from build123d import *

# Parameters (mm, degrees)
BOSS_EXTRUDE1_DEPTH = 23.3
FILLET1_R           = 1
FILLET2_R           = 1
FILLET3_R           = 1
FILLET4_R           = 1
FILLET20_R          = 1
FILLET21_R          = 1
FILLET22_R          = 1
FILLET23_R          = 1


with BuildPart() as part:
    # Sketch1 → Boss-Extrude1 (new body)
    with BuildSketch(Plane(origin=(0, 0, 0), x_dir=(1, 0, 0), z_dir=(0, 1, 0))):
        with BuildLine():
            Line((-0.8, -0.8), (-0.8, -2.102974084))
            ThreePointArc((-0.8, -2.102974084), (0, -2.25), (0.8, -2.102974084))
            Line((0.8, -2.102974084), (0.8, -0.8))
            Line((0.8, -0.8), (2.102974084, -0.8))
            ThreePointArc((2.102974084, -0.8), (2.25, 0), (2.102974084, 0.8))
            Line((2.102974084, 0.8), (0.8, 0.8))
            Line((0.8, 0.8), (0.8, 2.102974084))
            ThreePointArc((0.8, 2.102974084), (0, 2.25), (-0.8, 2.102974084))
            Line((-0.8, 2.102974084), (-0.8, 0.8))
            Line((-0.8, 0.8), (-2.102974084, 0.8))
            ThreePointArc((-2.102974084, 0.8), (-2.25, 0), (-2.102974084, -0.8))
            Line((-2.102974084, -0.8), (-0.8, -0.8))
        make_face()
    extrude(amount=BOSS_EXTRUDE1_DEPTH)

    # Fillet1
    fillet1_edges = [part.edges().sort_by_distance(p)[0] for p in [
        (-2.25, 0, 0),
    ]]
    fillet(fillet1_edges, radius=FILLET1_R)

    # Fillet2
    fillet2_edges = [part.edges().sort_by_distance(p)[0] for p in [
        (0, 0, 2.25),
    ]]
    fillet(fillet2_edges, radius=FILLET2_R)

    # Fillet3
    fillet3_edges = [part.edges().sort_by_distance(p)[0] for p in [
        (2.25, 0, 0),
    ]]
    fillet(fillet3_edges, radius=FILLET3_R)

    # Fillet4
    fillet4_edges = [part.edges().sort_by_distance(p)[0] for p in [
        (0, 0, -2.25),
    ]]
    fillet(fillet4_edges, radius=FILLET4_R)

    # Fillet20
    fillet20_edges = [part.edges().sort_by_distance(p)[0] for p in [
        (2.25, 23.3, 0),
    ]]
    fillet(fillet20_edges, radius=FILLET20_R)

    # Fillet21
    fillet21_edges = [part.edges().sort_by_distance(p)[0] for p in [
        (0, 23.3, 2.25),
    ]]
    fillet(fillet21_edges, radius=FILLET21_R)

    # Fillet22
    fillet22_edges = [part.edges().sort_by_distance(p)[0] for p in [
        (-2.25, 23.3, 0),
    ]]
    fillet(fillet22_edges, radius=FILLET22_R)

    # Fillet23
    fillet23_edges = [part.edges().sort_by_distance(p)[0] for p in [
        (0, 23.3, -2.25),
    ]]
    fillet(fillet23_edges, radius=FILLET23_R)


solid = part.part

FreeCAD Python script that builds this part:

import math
import FreeCAD as App
import Part
import Sketcher
from FreeCAD import Vector


def edges_at(feature, points):
    """Names of the edges that pass closest to the given points."""
    edges = feature.Shape.Edges
    near = lambda p: min(range(len(edges)), key=lambda i: edges[i].distToShape(Part.Vertex(*p))[0])
    return sorted({f"Edge{near(p) + 1}" for p in points})

doc = App.newDocument("Part")
params = doc.addObject("Spreadsheet::Sheet", "Params")
for row, (alias, value) in enumerate([
    ("sketch1_radius", "2.25 mm"),
    ("pad1_length", "23.3 mm"),
    ("fillet_radius", "1 mm"),
    ("fillet2_radius", "1 mm"),
    ("fillet3_radius", "1 mm"),
    ("fillet4_radius", "1 mm"),
    ("fillet5_radius", "1 mm"),
    ("fillet6_radius", "1 mm"),
    ("fillet7_radius", "1 mm"),
    ("fillet8_radius", "1 mm"),
], start=1):
    params.set(f"A{row}", alias)
    params.set(f"B{row}", "=" + value)
    params.setAlias(f"B{row}", alias)

body = doc.addObject("PartDesign::Body", "Body")

# Sketch on XZ plane
sketch1 = doc.addObject("Sketcher::SketchObject", "Sketch")
body.addObject(sketch1)
sketch1.AttachmentSupport = (doc.XZ_Plane, [""])
sketch1.MapMode = "FlatFace"
sketch1.addGeometry([
    Part.LineSegment(Vector(-0.8, 0.8, 0), Vector(-0.8, 2.102974, 0)),  # 0
    Part.ArcOfCircle(Part.Circle(Vector(0, 0, 0), Vector(0, 0, 1), 2.25), math.radians(69.172503), math.radians(110.827497)),  # 1
    Part.LineSegment(Vector(0.8, 2.102974, 0), Vector(0.8, 0.8, 0)),  # 2
    Part.LineSegment(Vector(0.8, 0.8, 0), Vector(2.102974, 0.8, 0)),  # 3
    Part.ArcOfCircle(Part.Circle(Vector(0, 0, 0), Vector(0, 0, 1), 2.25), math.radians(-20.827497), math.radians(20.827497)),  # 4
    Part.LineSegment(Vector(2.102974, -0.8, 0), Vector(0.8, -0.8, 0)),  # 5
    Part.LineSegment(Vector(0.8, -0.8, 0), Vector(0.8, -2.102974, 0)),  # 6
    Part.ArcOfCircle(Part.Circle(Vector(0, 0, 0), Vector(0, 0, 1), 2.25), math.radians(-110.827497), math.radians(-69.172503)),  # 7
    Part.LineSegment(Vector(-0.8, -2.102974, 0), Vector(-0.8, -0.8, 0)),  # 8
    Part.LineSegment(Vector(-0.8, -0.8, 0), Vector(-2.102974, -0.8, 0)),  # 9
    Part.ArcOfCircle(Part.Circle(Vector(0, 0, 0), Vector(0, 0, 1), 2.25), math.radians(159.172503), math.radians(200.827497)),  # 10
    Part.LineSegment(Vector(-2.102974, 0.8, 0), Vector(-0.8, 0.8, 0)),  # 11
], False)
sketch1.addConstraint([
    Sketcher.Constraint("Coincident", 0, 2, 1, 2),
    Sketcher.Constraint("Coincident", 1, 1, 2, 1),
    Sketcher.Constraint("Coincident", 2, 2, 3, 1),
    Sketcher.Constraint("Coincident", 3, 2, 4, 2),
    Sketcher.Constraint("Coincident", 4, 1, 5, 1),
    Sketcher.Constraint("Coincident", 5, 2, 6, 1),
    Sketcher.Constraint("Coincident", 6, 2, 7, 2),
    Sketcher.Constraint("Coincident", 7, 1, 8, 1),
    Sketcher.Constraint("Coincident", 8, 2, 9, 1),
    Sketcher.Constraint("Coincident", 9, 2, 10, 2),
    Sketcher.Constraint("Coincident", 10, 1, 11, 1),
    Sketcher.Constraint("Coincident", 11, 2, 0, 1),
    Sketcher.Constraint("Vertical", 0),
    Sketcher.Constraint("Vertical", 2),
    Sketcher.Constraint("Horizontal", 3),
    Sketcher.Constraint("Horizontal", 5),
    Sketcher.Constraint("Vertical", 6),
    Sketcher.Constraint("Vertical", 8),
    Sketcher.Constraint("Horizontal", 9),
    Sketcher.Constraint("Horizontal", 11),
    Sketcher.Constraint("Coincident", 1, 3, -1, 1),
    Sketcher.Constraint("Coincident", 4, 3, -1, 1),
    Sketcher.Constraint("Coincident", 7, 3, -1, 1),
    Sketcher.Constraint("Coincident", 10, 3, -1, 1),
    Sketcher.Constraint("Equal", 1, 4),
    Sketcher.Constraint("Equal", 4, 7),
    Sketcher.Constraint("Equal", 7, 10),
    Sketcher.Constraint("Symmetric", 2, 2, 8, 2, -1, 1),
    Sketcher.Constraint("Symmetric", 5, 2, 11, 2, -1, 1),
    Sketcher.Constraint("Symmetric", 5, 2, 8, 2, -2),
    Sketcher.Constraint("Equal", 11, 0),
    Sketcher.Constraint("Radius", 1, 2.25),
    Sketcher.Constraint("DistanceX", 0, 2, -1, 1, 0.8),
])
sketch1.setExpression("Constraints[31]", "Params.sketch1_radius")
pad1 = doc.addObject("PartDesign::Pad", "Pad")
body.addObject(pad1)
pad1.Profile = sketch1
pad1.setExpression("Length", "Params.pad1_length")
pad1.Reversed = True
doc.recompute()

fillet = doc.addObject("PartDesign::Fillet", "Fillet")
body.addObject(fillet)
fillet.Base = (pad1, edges_at(pad1, [(-2.25, 0, 0)]))
fillet.setExpression("Radius", "Params.fillet_radius")
doc.recompute()

fillet2 = doc.addObject("PartDesign::Fillet", "Fillet001")
body.addObject(fillet2)
fillet2.Base = (fillet, edges_at(fillet, [(0, 0, 2.25)]))
fillet2.setExpression("Radius", "Params.fillet2_radius")
doc.recompute()

fillet3 = doc.addObject("PartDesign::Fillet", "Fillet002")
body.addObject(fillet3)
fillet3.Base = (fillet2, edges_at(fillet2, [(2.25, 0, 0)]))
fillet3.setExpression("Radius", "Params.fillet3_radius")
doc.recompute()

fillet4 = doc.addObject("PartDesign::Fillet", "Fillet003")
body.addObject(fillet4)
fillet4.Base = (fillet3, edges_at(fillet3, [(0, 0, -2.25)]))
fillet4.setExpression("Radius", "Params.fillet4_radius")
doc.recompute()

fillet5 = doc.addObject("PartDesign::Fillet", "Fillet004")
body.addObject(fillet5)
fillet5.Base = (fillet4, edges_at(fillet4, [(2.25, 23.3, 0)]))
fillet5.setExpression("Radius", "Params.fillet5_radius")
doc.recompute()

fillet6 = doc.addObject("PartDesign::Fillet", "Fillet005")
body.addObject(fillet6)
fillet6.Base = (fillet5, edges_at(fillet5, [(0, 23.3, 2.25)]))
fillet6.setExpression("Radius", "Params.fillet6_radius")
doc.recompute()

fillet7 = doc.addObject("PartDesign::Fillet", "Fillet006")
body.addObject(fillet7)
fillet7.Base = (fillet6, edges_at(fillet6, [(-2.25, 23.3, 0)]))
fillet7.setExpression("Radius", "Params.fillet7_radius")
doc.recompute()

fillet8 = doc.addObject("PartDesign::Fillet", "Fillet007")
body.addObject(fillet8)
fillet8.Base = (fillet7, edges_at(fillet7, [(0, 23.3, -2.25)]))
fillet8.setExpression("Radius", "Params.fillet8_radius")

doc.recompute()
